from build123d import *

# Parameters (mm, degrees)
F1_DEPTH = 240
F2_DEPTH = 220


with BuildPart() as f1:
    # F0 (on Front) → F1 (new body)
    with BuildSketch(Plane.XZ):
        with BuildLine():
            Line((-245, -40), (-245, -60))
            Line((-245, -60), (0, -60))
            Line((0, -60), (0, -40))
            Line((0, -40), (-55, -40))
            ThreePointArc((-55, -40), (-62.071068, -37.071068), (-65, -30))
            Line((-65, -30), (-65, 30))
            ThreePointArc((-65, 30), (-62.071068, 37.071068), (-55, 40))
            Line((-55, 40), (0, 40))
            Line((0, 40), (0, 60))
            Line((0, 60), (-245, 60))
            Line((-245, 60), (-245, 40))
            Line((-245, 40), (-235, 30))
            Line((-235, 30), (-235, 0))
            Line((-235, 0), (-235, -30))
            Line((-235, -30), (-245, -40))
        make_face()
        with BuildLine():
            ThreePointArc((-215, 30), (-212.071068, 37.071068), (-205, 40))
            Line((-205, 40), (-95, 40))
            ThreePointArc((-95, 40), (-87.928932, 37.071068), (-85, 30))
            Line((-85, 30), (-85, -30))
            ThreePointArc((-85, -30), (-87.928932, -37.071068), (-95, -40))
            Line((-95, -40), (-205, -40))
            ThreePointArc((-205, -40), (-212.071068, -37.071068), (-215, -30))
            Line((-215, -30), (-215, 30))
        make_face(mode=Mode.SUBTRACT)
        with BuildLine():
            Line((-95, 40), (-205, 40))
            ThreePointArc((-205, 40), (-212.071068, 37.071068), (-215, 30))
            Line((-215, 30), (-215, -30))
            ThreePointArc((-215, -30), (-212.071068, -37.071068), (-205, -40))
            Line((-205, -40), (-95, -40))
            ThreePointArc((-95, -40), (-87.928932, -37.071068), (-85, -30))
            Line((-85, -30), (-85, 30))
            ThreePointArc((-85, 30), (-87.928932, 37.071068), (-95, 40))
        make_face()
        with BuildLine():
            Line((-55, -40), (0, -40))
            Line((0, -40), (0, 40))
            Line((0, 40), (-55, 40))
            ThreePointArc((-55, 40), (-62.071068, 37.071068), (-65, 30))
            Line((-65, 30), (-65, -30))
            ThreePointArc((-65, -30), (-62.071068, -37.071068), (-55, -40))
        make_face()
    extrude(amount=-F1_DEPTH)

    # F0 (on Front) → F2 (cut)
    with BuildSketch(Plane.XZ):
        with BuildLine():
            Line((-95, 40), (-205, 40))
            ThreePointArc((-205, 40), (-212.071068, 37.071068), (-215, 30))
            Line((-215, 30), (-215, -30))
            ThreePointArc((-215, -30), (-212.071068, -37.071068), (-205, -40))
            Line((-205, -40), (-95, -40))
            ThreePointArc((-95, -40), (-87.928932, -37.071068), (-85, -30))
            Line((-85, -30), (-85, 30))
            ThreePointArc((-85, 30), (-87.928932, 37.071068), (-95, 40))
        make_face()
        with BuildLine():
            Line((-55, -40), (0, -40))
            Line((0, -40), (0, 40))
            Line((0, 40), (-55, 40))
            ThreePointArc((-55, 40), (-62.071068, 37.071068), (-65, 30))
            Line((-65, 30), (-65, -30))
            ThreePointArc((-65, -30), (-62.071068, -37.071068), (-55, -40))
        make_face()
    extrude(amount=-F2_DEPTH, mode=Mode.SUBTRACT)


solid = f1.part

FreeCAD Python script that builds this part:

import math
import FreeCAD as App
import Part
import Sketcher
Q = App.Units.Quantity


def add_polygon(sketch, points):
    """Adds a closed chain of lines whose ends are joined by coincident constraints."""
    first, n = sketch.GeometryCount, len(points)
    for a, b in zip(points, points[1:] + points[:1]):
        sketch.addGeometry(Part.LineSegment(App.Vector(*a, 0), App.Vector(*b, 0)), False)
    for i in range(n):
        sketch.addConstraint(Sketcher.Constraint("Coincident", first + i, 2, first + (i + 1) % n, 1))

doc = App.newDocument("Part")
body = doc.addObject("PartDesign::Body", "Body")

sketch1 = doc.addObject("Sketcher::SketchObject", "Sketch")
body.addObject(sketch1)
sketch1.AttachmentSupport = (doc.XZ_Plane, [""])
sketch1.MapMode = "FlatFace"
add_polygon(sketch1, [(-245, -40), (-245, -60), (0, -60), (0, 60), (-245, 60), (-245, 40), (-235, 30), (-235, -30)])
sketch1.addConstraint([
    Sketcher.Constraint("Vertical", 0),
    Sketcher.Constraint("Horizontal", 1),
    Sketcher.Constraint("Vertical", 2),
    Sketcher.Constraint("Horizontal", 3),
    Sketcher.Constraint("Vertical", 4),
    Sketcher.Constraint("Vertical", 6),
    Sketcher.Constraint("Symmetric", 1, 2, 2, 2, -1, 1),
    Sketcher.Constraint("Symmetric", 4, 2, 7, 2, -1),
    Sketcher.Constraint("Perpendicular", 5, 7),
    Sketcher.Constraint("Equal", 5, 7),
    Sketcher.Constraint("DistanceX", 1, 1, 1, 2, Q("245 mm")),
    Sketcher.Constraint("DistanceY", 0, 2, 0, 1, Q("20 mm")),
    Sketcher.Constraint("DistanceY", 2, 1, 2, 2, Q("120 mm")),
    Sketcher.Constraint("DistanceY", 6, 2, 6, 1, Q("60 mm")),
])
pad1 = doc.addObject("PartDesign::Pad", "Pad")
body.addObject(pad1)
pad1.Profile = sketch1
pad1.Length = 240
pad1.Reversed = True

sketch2 = doc.addObject("Sketcher::SketchObject", "Sketch001")
body.addObject(sketch2)
sketch2.AttachmentSupport = (doc.XZ_Plane, [""])
sketch2.MapMode = "FlatFace"
sketch2.addGeometry([
    Part.LineSegment(App.Vector(-95, 40, 0), App.Vector(-205, 40, 0)),
    Part.ArcOfCircle(Part.Circle(App.Vector(-205.000001, 30.000001, 0), App.Vector(0, 0, 1), 9.999999), math.radians(89.999996), math.radians(180.000004)),
    Part.LineSegment(App.Vector(-215, 30, 0), App.Vector(-215, -30, 0)),
    Part.ArcOfCircle(Part.Circle(App.Vector(-205.000001, -30.000001, 0), App.Vector(0, 0, 1), 9.999999), math.radians(179.999996), math.radians(270.000004)),
    Part.LineSegment(App.Vector(-205, -40, 0), App.Vector(-95, -40, 0)),
    Part.ArcOfCircle(Part.Circle(App.Vector(-94.999999, -30.000001, 0), App.Vector(0, 0, 1), 9.999999), math.radians(-90.000004), math.radians(0.000004)),
    Part.LineSegment(App.Vector(-85, -30, 0), App.Vector(-85, 30, 0)),
    Part.ArcOfCircle(Part.Circle(App.Vector(-94.999999, 30.000001, 0), App.Vector(0, 0, 1), 9.999999), math.radians(-0.000004), math.radians(90.000004)),
    Part.LineSegment(App.Vector(-55, -40, 0), App.Vector(0, -40, 0)),
    Part.LineSegment(App.Vector(0, -40, 0), App.Vector(0, 40, 0)),
    Part.LineSegment(App.Vector(0, 40, 0), App.Vector(-55, 40, 0)),
    Part.ArcOfCircle(Part.Circle(App.Vector(-55.000001, 30.000001, 0), App.Vector(0, 0, 1), 9.999999), math.radians(89.999996), math.radians(180.000004)),
    Part.LineSegment(App.Vector(-65, 30, 0), App.Vector(-65, -30, 0)),
    Part.ArcOfCircle(Part.Circle(App.Vector(-55.000001, -30.000001, 0), App.Vector(0, 0, 1), 9.999999), math.radians(179.999996), math.radians(270.000004)),
], False)
sketch2.addConstraint([
    Sketcher.Constraint("Tangent", 0, 2, 1, 1),
    Sketcher.Constraint("Tangent", 1, 2, 2, 1),
    Sketcher.Constraint("Tangent", 2, 2, 3, 1),
    Sketcher.Constraint("Tangent", 3, 2, 4, 1),
    Sketcher.Constraint("Tangent", 4, 2, 5, 1),
    Sketcher.Constraint("Tangent", 5, 2, 6, 1),
    Sketcher.Constraint("Tangent", 6, 2, 7, 1),
    Sketcher.Constraint("Tangent", 7, 2, 0, 1),
    Sketcher.Constraint("Coincident", 8, 2, 9, 1),
    Sketcher.Constraint("Coincident", 9, 2, 10, 1),
    Sketcher.Constraint("Tangent", 10, 2, 11, 1),
    Sketcher.Constraint("Tangent", 11, 2, 12, 1),
    Sketcher.Constraint("Tangent", 12, 2, 13, 1),
    Sketcher.Constraint("Tangent", 13, 2, 8, 1),
    Sketcher.Constraint("Horizontal", 0),
    Sketcher.Constraint("Vertical", 2),
    Sketcher.Constraint("Horizontal", 4),
    Sketcher.Constraint("Vertical", 6),
    Sketcher.Constraint("Horizontal", 8),
    Sketcher.Constraint("Vertical", 9),
    Sketcher.Constraint("Horizontal", 10),
    Sketcher.Constraint("Vertical", 12),
    Sketcher.Constraint("Equal", 1, 3),
    Sketcher.Constraint("Equal", 3, 5),
    Sketcher.Constraint("Equal", 5, 7),
    Sketcher.Constraint("Equal", 7, 11),
    Sketcher.Constraint("Equal", 11, 13),
    Sketcher.Constraint("Symmetric", 8, 2, 9, 2, -1, 1),
    Sketcher.Constraint("Horizontal", 7, 3, 11, 3),
    Sketcher.Constraint("Horizontal", 5, 3, 13, 3),
    Sketcher.Constraint("Radius", 1, Q("9.999999 mm")),
    Sketcher.Constraint("DistanceX", 0, 2, 0, 1, Q("110 mm")),
    Sketcher.Constraint("DistanceX", 8, 1, 8, 2, Q("55 mm")),
    Sketcher.Constraint("DistanceY", 2, 2, 2, 1, Q("60 mm")),
    Sketcher.Constraint("DistanceX", 1, 3, -1, 1, Q("205.000001 mm")),
])
pocket1 = doc.addObject("PartDesign::Pocket", "Pocket")
body.addObject(pocket1)
pocket1.Profile = sketch2
pocket1.Length = 220

doc.recompute()
